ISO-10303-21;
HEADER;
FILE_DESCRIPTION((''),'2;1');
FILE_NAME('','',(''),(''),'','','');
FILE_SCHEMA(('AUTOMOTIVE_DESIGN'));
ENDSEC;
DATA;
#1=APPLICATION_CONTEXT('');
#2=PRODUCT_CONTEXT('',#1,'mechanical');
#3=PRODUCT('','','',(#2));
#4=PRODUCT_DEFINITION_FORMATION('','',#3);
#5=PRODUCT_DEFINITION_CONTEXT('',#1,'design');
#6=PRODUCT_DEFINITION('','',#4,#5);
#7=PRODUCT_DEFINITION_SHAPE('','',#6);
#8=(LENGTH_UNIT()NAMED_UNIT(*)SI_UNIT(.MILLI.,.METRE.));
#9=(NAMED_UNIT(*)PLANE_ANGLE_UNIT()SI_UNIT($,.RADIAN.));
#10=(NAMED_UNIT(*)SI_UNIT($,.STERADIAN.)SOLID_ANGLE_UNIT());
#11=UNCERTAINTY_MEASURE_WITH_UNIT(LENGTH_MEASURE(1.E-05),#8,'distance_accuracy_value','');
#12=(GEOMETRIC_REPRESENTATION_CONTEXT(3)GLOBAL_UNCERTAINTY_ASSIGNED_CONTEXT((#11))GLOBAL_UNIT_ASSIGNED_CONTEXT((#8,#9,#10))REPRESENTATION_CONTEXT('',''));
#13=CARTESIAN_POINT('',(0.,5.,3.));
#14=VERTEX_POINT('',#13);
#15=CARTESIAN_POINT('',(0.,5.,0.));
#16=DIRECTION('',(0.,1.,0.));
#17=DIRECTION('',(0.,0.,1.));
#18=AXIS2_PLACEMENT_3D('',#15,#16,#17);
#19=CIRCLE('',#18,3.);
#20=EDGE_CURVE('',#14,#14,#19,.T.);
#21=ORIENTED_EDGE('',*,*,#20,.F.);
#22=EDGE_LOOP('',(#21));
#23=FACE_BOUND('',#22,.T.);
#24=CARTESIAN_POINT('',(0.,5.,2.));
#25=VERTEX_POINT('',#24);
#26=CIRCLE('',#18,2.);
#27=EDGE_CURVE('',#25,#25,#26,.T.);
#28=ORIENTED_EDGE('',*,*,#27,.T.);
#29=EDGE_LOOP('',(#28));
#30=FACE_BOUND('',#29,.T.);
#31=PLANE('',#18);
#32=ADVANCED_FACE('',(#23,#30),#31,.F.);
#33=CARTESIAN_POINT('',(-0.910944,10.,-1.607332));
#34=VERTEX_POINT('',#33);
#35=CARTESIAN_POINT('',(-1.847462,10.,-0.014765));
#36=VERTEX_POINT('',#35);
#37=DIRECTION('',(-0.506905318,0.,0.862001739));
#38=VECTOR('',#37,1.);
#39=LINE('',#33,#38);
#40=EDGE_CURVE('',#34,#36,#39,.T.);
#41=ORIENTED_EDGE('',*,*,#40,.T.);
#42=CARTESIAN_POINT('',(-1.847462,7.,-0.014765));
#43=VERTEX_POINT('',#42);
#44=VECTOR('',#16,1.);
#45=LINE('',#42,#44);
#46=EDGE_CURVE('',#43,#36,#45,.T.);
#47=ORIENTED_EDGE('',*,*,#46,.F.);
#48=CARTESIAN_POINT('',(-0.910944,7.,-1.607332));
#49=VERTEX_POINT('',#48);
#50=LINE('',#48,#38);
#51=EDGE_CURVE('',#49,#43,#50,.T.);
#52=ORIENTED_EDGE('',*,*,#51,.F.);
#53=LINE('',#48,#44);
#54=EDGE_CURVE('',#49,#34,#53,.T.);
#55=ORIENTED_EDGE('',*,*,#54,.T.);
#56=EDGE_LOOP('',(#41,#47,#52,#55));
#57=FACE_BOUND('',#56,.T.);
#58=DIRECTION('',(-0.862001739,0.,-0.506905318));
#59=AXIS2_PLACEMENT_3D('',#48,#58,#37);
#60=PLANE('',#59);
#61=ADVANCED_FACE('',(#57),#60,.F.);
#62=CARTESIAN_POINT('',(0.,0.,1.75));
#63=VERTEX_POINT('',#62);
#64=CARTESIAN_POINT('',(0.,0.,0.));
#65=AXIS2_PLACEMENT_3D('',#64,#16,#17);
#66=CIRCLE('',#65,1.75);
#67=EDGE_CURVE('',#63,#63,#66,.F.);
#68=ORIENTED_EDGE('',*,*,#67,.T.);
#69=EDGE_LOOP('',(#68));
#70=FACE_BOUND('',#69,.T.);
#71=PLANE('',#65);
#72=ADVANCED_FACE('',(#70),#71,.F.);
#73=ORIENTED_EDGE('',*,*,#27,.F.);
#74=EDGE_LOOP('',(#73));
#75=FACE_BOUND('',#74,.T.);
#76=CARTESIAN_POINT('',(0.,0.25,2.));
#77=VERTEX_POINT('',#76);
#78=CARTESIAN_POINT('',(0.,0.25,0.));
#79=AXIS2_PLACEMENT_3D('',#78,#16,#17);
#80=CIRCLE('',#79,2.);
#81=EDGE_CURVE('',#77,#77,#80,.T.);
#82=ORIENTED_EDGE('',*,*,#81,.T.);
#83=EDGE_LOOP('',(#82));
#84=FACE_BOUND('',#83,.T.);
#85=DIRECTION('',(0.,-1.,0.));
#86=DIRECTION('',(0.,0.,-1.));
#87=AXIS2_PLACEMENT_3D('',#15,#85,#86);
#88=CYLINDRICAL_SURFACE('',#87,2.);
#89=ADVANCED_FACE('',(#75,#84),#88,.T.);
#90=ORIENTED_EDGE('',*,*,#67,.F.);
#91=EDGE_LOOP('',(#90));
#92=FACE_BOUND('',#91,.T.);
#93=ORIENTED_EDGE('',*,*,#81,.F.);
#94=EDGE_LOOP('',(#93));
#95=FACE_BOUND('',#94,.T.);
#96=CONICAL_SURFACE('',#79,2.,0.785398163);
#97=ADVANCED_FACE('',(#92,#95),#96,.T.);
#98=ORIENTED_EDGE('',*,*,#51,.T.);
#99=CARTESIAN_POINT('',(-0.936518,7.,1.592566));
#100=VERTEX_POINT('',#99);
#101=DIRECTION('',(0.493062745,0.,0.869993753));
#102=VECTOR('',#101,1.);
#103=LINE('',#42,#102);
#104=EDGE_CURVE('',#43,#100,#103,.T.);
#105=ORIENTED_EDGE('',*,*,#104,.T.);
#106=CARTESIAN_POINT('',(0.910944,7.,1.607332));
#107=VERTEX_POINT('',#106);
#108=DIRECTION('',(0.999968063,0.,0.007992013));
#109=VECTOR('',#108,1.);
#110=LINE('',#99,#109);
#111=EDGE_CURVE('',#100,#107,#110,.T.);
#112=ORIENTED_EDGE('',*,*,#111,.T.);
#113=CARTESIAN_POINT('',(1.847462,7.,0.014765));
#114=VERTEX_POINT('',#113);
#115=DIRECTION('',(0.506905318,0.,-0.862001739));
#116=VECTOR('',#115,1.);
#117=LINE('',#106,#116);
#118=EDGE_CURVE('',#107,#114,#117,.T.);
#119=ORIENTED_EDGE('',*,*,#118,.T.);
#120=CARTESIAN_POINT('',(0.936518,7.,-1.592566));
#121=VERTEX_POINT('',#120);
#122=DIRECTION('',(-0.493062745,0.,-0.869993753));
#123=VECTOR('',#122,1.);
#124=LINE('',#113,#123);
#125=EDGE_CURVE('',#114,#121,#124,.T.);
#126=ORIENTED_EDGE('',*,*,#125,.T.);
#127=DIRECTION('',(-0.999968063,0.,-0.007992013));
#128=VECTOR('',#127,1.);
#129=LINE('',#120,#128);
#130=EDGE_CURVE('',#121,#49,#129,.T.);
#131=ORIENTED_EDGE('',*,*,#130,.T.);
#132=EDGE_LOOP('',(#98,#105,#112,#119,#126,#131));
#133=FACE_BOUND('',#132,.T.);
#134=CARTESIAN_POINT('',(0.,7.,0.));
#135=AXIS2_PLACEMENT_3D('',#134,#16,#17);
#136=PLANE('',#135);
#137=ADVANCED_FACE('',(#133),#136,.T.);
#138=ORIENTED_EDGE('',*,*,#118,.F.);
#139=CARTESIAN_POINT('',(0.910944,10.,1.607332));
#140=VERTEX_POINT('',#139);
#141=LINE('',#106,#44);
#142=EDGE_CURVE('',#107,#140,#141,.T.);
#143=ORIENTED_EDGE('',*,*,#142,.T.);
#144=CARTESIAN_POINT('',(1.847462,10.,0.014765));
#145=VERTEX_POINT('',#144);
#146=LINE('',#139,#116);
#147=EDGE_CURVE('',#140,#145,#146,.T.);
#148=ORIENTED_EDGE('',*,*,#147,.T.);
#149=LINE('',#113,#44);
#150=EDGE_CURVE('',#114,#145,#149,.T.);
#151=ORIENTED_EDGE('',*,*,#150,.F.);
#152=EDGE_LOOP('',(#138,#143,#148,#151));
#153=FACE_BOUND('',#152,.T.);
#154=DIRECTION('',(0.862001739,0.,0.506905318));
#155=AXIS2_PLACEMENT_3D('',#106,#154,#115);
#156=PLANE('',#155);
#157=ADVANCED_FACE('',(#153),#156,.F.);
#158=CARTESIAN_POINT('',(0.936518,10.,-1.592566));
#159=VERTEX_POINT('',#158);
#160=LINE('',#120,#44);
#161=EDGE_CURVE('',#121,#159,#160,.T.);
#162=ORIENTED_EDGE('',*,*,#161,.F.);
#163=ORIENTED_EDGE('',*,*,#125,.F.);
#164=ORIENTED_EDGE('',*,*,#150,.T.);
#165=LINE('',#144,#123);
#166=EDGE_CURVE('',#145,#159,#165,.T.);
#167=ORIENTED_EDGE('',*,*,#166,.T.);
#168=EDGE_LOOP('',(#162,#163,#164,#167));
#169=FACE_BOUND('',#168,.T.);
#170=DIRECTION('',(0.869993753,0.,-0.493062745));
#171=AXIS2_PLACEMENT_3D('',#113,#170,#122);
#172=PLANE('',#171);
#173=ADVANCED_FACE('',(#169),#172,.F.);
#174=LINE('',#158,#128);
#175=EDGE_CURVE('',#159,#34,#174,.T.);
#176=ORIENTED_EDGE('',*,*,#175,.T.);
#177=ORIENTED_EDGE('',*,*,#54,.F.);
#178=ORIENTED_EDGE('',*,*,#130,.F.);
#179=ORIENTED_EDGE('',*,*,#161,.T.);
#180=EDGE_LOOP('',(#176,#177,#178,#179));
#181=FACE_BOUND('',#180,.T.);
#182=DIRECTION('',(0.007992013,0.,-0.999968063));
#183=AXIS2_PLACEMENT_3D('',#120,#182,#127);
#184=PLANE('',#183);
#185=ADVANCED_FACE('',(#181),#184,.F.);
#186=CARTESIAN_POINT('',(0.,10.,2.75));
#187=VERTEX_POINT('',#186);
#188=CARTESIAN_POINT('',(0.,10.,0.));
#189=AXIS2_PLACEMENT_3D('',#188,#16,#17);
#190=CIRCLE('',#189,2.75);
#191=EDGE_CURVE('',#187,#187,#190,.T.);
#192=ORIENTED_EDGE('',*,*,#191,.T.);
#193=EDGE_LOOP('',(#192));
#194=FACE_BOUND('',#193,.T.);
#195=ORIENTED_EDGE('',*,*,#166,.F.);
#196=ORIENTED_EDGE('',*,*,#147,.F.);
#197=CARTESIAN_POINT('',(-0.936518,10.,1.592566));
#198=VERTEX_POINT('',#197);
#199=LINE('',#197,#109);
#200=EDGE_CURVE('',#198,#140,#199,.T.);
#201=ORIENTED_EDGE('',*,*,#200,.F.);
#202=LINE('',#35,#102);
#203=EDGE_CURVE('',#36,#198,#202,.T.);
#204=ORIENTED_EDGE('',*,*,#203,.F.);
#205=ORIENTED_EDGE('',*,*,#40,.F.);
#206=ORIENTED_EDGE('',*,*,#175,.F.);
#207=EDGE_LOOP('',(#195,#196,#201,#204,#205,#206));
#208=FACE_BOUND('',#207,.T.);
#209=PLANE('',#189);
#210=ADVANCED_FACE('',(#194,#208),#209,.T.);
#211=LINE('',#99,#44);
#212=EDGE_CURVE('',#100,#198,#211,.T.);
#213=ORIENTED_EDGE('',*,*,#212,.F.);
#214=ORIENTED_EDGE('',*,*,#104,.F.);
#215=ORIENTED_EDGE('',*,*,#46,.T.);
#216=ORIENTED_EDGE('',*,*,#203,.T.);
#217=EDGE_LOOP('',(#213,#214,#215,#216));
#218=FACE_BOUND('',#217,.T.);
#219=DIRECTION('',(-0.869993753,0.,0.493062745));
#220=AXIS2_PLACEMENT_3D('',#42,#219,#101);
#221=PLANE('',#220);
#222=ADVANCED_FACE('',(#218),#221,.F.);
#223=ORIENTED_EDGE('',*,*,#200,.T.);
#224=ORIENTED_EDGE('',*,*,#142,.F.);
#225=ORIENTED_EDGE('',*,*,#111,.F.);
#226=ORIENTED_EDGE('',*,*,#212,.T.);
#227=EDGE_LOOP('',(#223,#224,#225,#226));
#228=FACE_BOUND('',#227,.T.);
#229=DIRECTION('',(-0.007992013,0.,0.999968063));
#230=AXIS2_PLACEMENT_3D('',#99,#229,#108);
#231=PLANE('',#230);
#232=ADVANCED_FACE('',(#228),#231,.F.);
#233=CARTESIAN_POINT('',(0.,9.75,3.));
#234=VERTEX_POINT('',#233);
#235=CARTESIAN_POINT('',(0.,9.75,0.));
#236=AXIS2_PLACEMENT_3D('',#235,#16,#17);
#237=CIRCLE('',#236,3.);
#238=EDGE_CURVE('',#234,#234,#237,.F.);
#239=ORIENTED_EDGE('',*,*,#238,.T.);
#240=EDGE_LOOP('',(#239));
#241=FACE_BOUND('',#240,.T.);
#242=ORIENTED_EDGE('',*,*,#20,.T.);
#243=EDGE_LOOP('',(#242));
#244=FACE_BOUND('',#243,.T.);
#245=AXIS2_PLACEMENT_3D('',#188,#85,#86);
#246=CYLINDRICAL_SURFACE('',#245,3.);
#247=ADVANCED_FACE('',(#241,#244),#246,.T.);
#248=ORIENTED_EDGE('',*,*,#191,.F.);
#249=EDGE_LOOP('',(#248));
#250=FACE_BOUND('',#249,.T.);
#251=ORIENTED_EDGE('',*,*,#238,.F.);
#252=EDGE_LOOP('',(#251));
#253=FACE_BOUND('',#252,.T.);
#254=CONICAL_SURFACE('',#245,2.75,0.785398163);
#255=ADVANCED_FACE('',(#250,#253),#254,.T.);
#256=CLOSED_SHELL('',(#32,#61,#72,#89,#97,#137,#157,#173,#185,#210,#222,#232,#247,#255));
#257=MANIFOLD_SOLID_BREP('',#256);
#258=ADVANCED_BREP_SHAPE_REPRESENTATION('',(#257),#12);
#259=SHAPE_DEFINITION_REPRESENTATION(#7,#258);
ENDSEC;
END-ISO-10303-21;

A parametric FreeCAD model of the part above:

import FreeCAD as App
import Part
import Sketcher
from FreeCAD import Vector
Q = App.Units.Quantity


def edges_at(feature, points):
    """Names of the edges that pass closest to the given points."""
    edges = feature.Shape.Edges
    near = lambda p: min(range(len(edges)), key=lambda i: edges[i].distToShape(Part.Vertex(*p))[0])
    return sorted({f"Edge{near(p) + 1}" for p in points})


def add_polygon(sketch, points):
    """Adds a closed chain of lines whose ends are joined by coincident constraints."""
    first, n = sketch.GeometryCount, len(points)
    for a, b in zip(points, points[1:] + points[:1]):
        sketch.addGeometry(Part.LineSegment(App.Vector(*a, 0), App.Vector(*b, 0)), False)
    for i in range(n):
        sketch.addConstraint(Sketcher.Constraint("Coincident", first + i, 2, first + (i + 1) % n, 1))

doc = App.newDocument("Part")
params = doc.addObject("Spreadsheet::Sheet", "Params")
for row, (alias, value) in enumerate([
    ("sketch1_diameter", "4 mm"),
    ("pad1_length", "5 mm"),
    ("sketch2_diameter", "6 mm"),
    ("pad2_length", "5 mm"),
    ("pocket1_length", "3 mm"),
    ("chamfer_size", "0.25 mm"),
], start=1):
    params.set(f"A{row}", alias)
    params.set(f"B{row}", "=" + value)
    params.setAlias(f"B{row}", alias)

body = doc.addObject("PartDesign::Body", "Body")

sketch1 = body.newObject("Sketcher::SketchObject", "Sketch")
sketch1.AttachmentSupport = (doc.getObject("XZ_Plane"), [""])
sketch1.MapMode = "FlatFace"
sketch1.addGeometry(Part.Circle(Vector(0, 0, 0), Vector(0, 0, 1), 2), False)
sketch1.addConstraint(Sketcher.Constraint("Coincident", 0, 3, -1, 1))
sketch1.addConstraint(Sketcher.Constraint("Diameter", 0, Q("4 mm")))
sketch1.setExpression("Constraints[1]", "Params.sketch1_diameter")
pad1 = body.newObject("PartDesign::Pad", "Pad")
pad1.Profile = sketch1
pad1.setExpression("Length", "Params.pad1_length")
pad1.Reversed = True

sketch2 = body.newObject("Sketcher::SketchObject", "Sketch001")
sketch2.AttachmentSupport = (doc.getObject("XZ_Plane"), [""])
sketch2.MapMode = "FlatFace"
sketch2.AttachmentOffset = App.Placement(Vector(0, 0, -5), App.Rotation())
sketch2.addGeometry(Part.Circle(Vector(0, 0, 0), Vector(0, 0, 1), 3), False)
sketch2.addConstraint(Sketcher.Constraint("Coincident", 0, 3, -1, 1))
sketch2.addConstraint(Sketcher.Constraint("Diameter", 0, Q("6 mm")))
sketch2.setExpression("Constraints[1]", "Params.sketch2_diameter")
pad2 = body.newObject("PartDesign::Pad", "Pad001")
pad2.Profile = sketch2
pad2.setExpression("Length", "Params.pad2_length")
pad2.Reversed = True

sketch3 = body.newObject("Sketcher::SketchObject", "Sketch002")
sketch3.AttachmentSupport = (doc.getObject("XZ_Plane"), [""])
sketch3.MapMode = "FlatFace"
sketch3.AttachmentOffset = App.Placement(Vector(0, 0, -10), App.Rotation())
add_polygon(sketch3, [(-0.936518, 1.592566), (0.910944, 1.607332), (1.847462, 0.014765), (0.936518, -1.592566), (-0.910944, -1.607332), (-1.847462, -0.014765)])
sketch3.addConstraint(Sketcher.Constraint("Symmetric", 0, 2, 3, 2, -1, 1))
sketch3.addConstraint(Sketcher.Constraint("Symmetric", 1, 2, 4, 2, -1, 1))
sketch3.addConstraint(Sketcher.Constraint("Symmetric", 2, 2, 5, 2, -1, 1))
sketch3.addConstraint(Sketcher.Constraint("Equal", 0, 1))
sketch3.addConstraint(Sketcher.Constraint("Equal", 1, 2))
sketch3.addConstraint(Sketcher.Constraint("DistanceY", 2, 2, 4, 2, Q("1.577801 mm")))
sketch3.addConstraint(Sketcher.Constraint("Distance", 0, Q("1.847521 mm")))
sketch3.addConstraint(Sketcher.Constraint("DistanceY", -1, 1, 0, 2, Q("1.607332 mm")))
sketch3.addConstraint(Sketcher.Constraint("DistanceX", -1, 1, 1, 2, Q("1.847462 mm")))
pocket1 = body.newObject("PartDesign::Pocket", "Pocket")
pocket1.Profile = sketch3
pocket1.setExpression("Length", "Params.pocket1_length")
pocket1.Reversed = True
doc.recompute()

chamfer = body.newObject("PartDesign::Chamfer", "Chamfer")
chamfer.Base = (pocket1, edges_at(pocket1, [(0, 0, -2), (0, 10, -3)]))
chamfer.setExpression("Size", "Params.chamfer_size")

doc.recompute()
